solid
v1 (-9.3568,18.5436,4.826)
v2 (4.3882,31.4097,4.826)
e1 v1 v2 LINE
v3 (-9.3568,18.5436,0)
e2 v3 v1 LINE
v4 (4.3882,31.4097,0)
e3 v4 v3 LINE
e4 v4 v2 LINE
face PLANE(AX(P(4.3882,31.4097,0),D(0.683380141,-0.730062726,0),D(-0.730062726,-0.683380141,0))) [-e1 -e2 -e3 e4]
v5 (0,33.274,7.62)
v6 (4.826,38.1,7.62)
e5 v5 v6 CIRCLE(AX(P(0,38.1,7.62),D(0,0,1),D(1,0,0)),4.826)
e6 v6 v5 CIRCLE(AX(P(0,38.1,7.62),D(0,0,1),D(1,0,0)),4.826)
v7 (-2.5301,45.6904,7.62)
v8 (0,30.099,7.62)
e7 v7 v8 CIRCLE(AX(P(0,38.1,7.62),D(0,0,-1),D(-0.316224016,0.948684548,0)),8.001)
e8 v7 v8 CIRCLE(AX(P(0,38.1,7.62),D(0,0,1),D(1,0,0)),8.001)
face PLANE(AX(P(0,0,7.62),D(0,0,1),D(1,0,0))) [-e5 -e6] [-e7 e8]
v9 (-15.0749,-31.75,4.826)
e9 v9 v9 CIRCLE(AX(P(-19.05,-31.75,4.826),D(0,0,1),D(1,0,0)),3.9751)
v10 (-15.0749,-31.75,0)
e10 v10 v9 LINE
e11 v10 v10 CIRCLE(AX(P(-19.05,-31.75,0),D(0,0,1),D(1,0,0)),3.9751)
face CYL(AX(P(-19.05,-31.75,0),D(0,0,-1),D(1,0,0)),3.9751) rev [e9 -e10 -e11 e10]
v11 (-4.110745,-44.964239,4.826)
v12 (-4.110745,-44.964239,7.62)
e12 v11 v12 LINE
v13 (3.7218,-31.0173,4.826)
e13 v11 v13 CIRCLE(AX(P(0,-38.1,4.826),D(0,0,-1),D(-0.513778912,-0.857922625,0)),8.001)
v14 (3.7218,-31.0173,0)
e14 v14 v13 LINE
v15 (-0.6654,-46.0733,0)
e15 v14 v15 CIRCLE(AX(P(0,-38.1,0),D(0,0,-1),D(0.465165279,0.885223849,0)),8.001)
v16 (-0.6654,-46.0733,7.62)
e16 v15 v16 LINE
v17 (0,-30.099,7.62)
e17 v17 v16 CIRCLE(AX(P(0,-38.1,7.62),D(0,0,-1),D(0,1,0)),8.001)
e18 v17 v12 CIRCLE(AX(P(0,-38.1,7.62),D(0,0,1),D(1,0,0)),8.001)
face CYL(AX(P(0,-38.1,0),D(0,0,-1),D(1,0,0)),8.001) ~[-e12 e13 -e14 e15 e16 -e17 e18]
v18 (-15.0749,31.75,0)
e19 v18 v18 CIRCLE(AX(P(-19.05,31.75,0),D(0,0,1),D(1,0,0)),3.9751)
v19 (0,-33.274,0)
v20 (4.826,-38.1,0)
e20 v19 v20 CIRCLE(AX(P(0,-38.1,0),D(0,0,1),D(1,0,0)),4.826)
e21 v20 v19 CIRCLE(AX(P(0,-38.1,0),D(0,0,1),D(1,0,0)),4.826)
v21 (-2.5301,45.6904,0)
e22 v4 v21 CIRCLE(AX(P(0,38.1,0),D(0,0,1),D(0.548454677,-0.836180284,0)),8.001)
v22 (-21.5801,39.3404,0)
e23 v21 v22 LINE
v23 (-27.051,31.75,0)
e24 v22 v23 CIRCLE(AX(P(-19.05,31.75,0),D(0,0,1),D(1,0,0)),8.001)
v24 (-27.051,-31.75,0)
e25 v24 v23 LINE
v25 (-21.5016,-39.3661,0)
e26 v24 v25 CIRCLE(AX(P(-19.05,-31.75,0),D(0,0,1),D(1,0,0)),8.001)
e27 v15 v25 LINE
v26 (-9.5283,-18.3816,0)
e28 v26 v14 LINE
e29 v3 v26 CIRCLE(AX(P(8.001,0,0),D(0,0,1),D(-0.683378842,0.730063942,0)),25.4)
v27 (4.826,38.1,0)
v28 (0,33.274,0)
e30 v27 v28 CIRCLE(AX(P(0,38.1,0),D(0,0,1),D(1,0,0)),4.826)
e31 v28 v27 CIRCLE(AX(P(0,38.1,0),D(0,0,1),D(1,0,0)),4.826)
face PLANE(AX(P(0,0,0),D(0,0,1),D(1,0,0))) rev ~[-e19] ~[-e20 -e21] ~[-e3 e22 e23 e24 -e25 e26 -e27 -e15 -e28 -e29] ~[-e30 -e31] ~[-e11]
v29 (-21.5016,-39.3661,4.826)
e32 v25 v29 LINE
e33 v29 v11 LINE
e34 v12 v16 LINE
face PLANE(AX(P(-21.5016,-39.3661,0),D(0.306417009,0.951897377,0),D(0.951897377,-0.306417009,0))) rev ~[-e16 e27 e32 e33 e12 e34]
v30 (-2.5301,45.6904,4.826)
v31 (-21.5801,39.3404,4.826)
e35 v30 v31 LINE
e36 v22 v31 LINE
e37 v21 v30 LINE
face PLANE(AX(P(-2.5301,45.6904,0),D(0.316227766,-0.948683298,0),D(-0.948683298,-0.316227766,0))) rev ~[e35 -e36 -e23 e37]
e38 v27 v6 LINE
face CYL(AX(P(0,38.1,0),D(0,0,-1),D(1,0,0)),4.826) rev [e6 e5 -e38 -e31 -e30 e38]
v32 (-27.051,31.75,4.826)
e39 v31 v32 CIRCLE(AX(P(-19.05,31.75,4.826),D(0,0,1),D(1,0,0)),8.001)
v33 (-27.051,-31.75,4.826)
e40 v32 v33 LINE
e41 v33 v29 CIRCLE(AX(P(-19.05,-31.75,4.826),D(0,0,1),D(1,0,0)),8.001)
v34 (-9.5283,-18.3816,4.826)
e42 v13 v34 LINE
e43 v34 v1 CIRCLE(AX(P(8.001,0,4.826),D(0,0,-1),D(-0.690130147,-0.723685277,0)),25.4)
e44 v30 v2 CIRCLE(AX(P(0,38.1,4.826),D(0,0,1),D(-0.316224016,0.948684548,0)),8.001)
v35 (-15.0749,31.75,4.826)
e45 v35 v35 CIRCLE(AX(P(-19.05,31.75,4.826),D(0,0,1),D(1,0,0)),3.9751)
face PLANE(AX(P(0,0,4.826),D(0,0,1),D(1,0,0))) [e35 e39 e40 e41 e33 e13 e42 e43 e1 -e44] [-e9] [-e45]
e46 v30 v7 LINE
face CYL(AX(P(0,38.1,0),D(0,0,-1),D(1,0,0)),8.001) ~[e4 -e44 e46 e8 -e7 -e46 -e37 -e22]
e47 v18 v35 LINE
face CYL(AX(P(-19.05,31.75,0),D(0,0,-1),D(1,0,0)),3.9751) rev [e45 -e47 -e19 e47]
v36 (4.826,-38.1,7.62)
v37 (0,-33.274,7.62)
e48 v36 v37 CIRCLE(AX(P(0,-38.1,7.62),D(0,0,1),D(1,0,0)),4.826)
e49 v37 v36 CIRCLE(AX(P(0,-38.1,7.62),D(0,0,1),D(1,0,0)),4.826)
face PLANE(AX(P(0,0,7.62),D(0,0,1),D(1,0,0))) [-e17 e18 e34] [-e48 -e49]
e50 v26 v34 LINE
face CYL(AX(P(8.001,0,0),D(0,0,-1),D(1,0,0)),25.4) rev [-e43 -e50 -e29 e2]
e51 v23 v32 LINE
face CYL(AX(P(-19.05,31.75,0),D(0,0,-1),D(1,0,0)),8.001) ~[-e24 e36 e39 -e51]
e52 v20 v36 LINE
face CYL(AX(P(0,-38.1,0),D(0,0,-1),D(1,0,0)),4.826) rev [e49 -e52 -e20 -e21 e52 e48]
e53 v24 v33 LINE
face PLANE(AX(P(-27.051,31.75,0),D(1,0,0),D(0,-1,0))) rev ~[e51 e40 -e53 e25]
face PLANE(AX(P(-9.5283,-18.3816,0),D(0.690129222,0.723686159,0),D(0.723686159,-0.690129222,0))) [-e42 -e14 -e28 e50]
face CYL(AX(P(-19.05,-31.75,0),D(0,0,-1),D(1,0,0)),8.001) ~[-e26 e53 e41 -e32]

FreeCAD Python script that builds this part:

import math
import FreeCAD as App
import Part
import Sketcher

V = App.Vector
Q = App.Units.Quantity

doc = App.newDocument("Part")
body = doc.addObject("PartDesign::Body", "Body")

sketch1 = doc.addObject("Sketcher::SketchObject", "Sketch")
body.addObject(sketch1)
sketch1.AttachmentSupport = (doc.XY_Plane, [""])
sketch1.MapMode = "FlatFace"
sketch1.addGeometry(Part.LineSegment(V(-2.5, 45.7, 0), V(-21.6, 39.3, 0)), False)
sketch1.addGeometry(Part.ArcOfCircle(Part.Circle(V(-19.1, 31.8, 0), V(0, 0, 1), 8), math.radians(108), math.radians(180)), False)
sketch1.addGeometry(Part.LineSegment(V(-27.1, 31.8, 0), V(-27.1, -31.8, 0)), False)
sketch1.addGeometry(Part.ArcOfCircle(Part.Circle(V(-19.1, -31.8, 0), V(0, 0, 1), 8), math.radians(180), math.radians(252)), False)
sketch1.addGeometry(Part.LineSegment(V(-21.5, -39.4, 0), V(-0.7, -46.1, 0)), False)
sketch1.addGeometry(Part.ArcOfCircle(Part.Circle(V(0, -38.1, 0), V(0, 0, 1), 8), math.radians(-95), math.radians(62)), False)
sketch1.addGeometry(Part.LineSegment(V(3.7, -31, 0), V(-9.5, -18.4, 0)), False)
sketch1.addGeometry(Part.ArcOfCircle(Part.Circle(V(8, 0, 0), V(0, 0, 1), 25.4), math.radians(133), math.radians(226)), False)
sketch1.addGeometry(Part.LineSegment(V(-9.4, 18.5, 0), V(4.4, 31.4, 0)), False)
sketch1.addGeometry(Part.ArcOfCircle(Part.Circle(V(0, 38.1, 0), V(0, 0, 1), 8), math.radians(-57), math.radians(108)), False)
sketch1.addGeometry(Part.Circle(V(0, 38.1, 0), V(0, 0, 1), 4.8), False)
sketch1.addGeometry(Part.Circle(V(-19.1, 31.8, 0), V(0, 0, 1), 4), False)
sketch1.addGeometry(Part.Circle(V(0, -38.1, 0), V(0, 0, 1), 4.8), False)
sketch1.addGeometry(Part.Circle(V(-19.1, -31.8, 0), V(0, 0, 1), 4), False)
sketch1.addConstraint(Sketcher.Constraint("Tangent", 0, 2, 1, 1))
sketch1.addConstraint(Sketcher.Constraint("Tangent", 1, 2, 2, 1))
sketch1.addConstraint(Sketcher.Constraint("Tangent", 2, 2, 3, 1))
sketch1.addConstraint(Sketcher.Constraint("Tangent", 3, 2, 4, 1))
sketch1.addConstraint(Sketcher.Constraint("Coincident", 4, 2, 5, 1))
sketch1.addConstraint(Sketcher.Constraint("Coincident", 5, 2, 6, 1))
sketch1.addConstraint(Sketcher.Constraint("Tangent", 6, 2, 7, 2))
sketch1.addConstraint(Sketcher.Constraint("Tangent", 7, 1, 8, 1))
sketch1.addConstraint(Sketcher.Constraint("Coincident", 8, 2, 9, 1))
sketch1.addConstraint(Sketcher.Constraint("Tangent", 9, 2, 0, 1))
sketch1.addConstraint(Sketcher.Constraint("Vertical", 2))
sketch1.addConstraint(Sketcher.Constraint("Coincident", 10, 3, 9, 3))
sketch1.addConstraint(Sketcher.Constraint("Coincident", 11, 3, 1, 3))
sketch1.addConstraint(Sketcher.Constraint("Coincident", 12, 3, 5, 3))
sketch1.addConstraint(Sketcher.Constraint("Coincident", 13, 3, 3, 3))
sketch1.addConstraint(Sketcher.Constraint("Equal", 1, 3))
sketch1.addConstraint(Sketcher.Constraint("Equal", 3, 5))
sketch1.addConstraint(Sketcher.Constraint("Equal", 5, 9))
sketch1.addConstraint(Sketcher.Constraint("Equal", 10, 12))
sketch1.addConstraint(Sketcher.Constraint("Equal", 11, 13))
sketch1.addConstraint(Sketcher.Constraint("Symmetric", 5, 3, 9, 3, -1, 1))
sketch1.addConstraint(Sketcher.Constraint("PointOnObject", 5, 3, -2))
sketch1.addConstraint(Sketcher.Constraint("PointOnObject", 7, 3, -1))
sketch1.addConstraint(Sketcher.Constraint("Radius", 7, Q("1 in")))
sketch1.addConstraint(Sketcher.Constraint("Diameter", 10, Q("0.38 in")))
sketch1.addConstraint(Sketcher.Constraint("Diameter", 11, Q("0.313 in")))
sketch1.addConstraint(Sketcher.Constraint("Radius", 1, Q("0.315 in")))
sketch1.addConstraint(Sketcher.Constraint("DistanceY", 5, 3, 9, 3, Q("3 in")))
sketch1.addConstraint(Sketcher.Constraint("DistanceX", 1, 3, -1, 1, Q("0.75 in")))
sketch1.addConstraint(Sketcher.Constraint("DistanceY", 5, 3, 3, 3, Q("0.25 in")))
sketch1.addConstraint(Sketcher.Constraint("DistanceY", 1, 3, 9, 3, Q("0.25 in")))
sketch1.addConstraint(Sketcher.Constraint("Angle", 6, Q("136.3597 deg")))
sketch1.addConstraint(Sketcher.Constraint("DistanceX", 2, 2, 7, 3, Q("1.38 in")))
sketch1.addConstraint(Sketcher.Constraint("DistanceX", 4, 2, -1, 1, Q("0.0262 in")))
sketch1.addConstraint(Sketcher.Constraint("DistanceY", -1, 1, 8, 2, Q("1.2366 in")))
pad1 = doc.addObject("PartDesign::Pad", "Pad")
body.addObject(pad1)
pad1.Profile = sketch1
pad1.Length = Q("0.19 in")

sketch2 = doc.addObject("Sketcher::SketchObject", "Sketch001")
body.addObject(sketch2)
sketch2.AttachmentSupport = (doc.XY_Plane, [""])
sketch2.MapMode = "FlatFace"
sketch2.addGeometry(Part.Circle(V(0, 38.1, 0), V(0, 0, 1), 8), False)
sketch2.addGeometry(Part.Circle(V(0, 38.1, 0), V(0, 0, 1), 4.8), False)
sketch2.addGeometry(Part.ArcOfCircle(Part.Circle(V(0, -38.1, 0), V(0, 0, 1), 8), math.radians(-95), math.radians(90)), False)
sketch2.addGeometry(Part.ArcOfCircle(Part.Circle(V(0, -38.1, 0), V(0, 0, 1), 8), math.radians(90), math.radians(239)), False)
sketch2.addGeometry(Part.LineSegment(V(-4.1, -45, 0), V(-0.7, -46.1, 0)), False)
sketch2.addGeometry(Part.Circle(V(0, -38.1, 0), V(0, 0, 1), 4.8), False)
sketch2.addConstraint(Sketcher.Constraint("Tangent", 2, 2, 3, 1))
sketch2.addConstraint(Sketcher.Constraint("Coincident", 3, 2, 4, 1))
sketch2.addConstraint(Sketcher.Constraint("Coincident", 4, 2, 2, 1))
sketch2.addConstraint(Sketcher.Constraint("Coincident", 1, 3, 0, 3))
sketch2.addConstraint(Sketcher.Constraint("Coincident", 5, 3, 2, 3))
sketch2.addConstraint(Sketcher.Constraint("Equal", 0, 2))
sketch2.addConstraint(Sketcher.Constraint("Equal", 2, 3))
sketch2.addConstraint(Sketcher.Constraint("Equal", 1, 5))
sketch2.addConstraint(Sketcher.Constraint("Symmetric", 0, 3, 2, 3, -1, 1))
sketch2.addConstraint(Sketcher.Constraint("PointOnObject", 0, 3, -2))
sketch2.addConstraint(Sketcher.Constraint("PointOnObject", 2, 2, -2))
sketch2.addConstraint(Sketcher.Constraint("Diameter", 0, Q("0.63 in")))
sketch2.addConstraint(Sketcher.Constraint("Diameter", 1, Q("0.38 in")))
sketch2.addConstraint(Sketcher.Constraint("DistanceY", 2, 3, 0, 3, Q("3 in")))
sketch2.addConstraint(Sketcher.Constraint("Distance", 4, Q("0.1425 in")))
sketch2.addConstraint(Sketcher.Constraint("DistanceX", 4, 2, -1, 1, Q("0.0262 in")))
pad2 = doc.addObject("PartDesign::Pad", "Pad001")
body.addObject(pad2)
pad2.Profile = sketch2
pad2.Length = Q("0.3 in")

doc.recompute()
